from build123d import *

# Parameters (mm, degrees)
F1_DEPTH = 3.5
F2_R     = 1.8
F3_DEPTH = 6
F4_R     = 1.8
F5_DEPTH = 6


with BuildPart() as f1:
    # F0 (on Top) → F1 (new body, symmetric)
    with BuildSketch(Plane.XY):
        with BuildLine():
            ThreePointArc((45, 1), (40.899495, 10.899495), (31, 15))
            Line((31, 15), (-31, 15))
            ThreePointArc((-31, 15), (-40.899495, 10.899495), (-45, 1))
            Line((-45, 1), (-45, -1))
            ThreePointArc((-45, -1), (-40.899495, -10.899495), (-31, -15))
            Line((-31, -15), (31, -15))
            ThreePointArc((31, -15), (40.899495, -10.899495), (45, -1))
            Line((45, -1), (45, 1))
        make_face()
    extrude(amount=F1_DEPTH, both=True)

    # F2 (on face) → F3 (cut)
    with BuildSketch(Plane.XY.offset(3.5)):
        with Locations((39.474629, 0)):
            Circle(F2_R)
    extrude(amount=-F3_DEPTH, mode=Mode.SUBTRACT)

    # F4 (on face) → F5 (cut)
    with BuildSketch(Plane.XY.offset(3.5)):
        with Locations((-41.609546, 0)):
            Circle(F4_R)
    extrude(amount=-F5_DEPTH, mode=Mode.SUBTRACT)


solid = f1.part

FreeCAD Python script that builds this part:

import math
import FreeCAD as App
import Part
import Sketcher

V = App.Vector

doc = App.newDocument("Part")
params = doc.addObject("Spreadsheet::Sheet", "Params")
for row, (alias, value) in enumerate([
    ("sketch1_radius", "14 mm"),
    ("sketch1_width", "62 mm"),
    ("sketch1_height", "2 mm"),
    ("pad1_length", "7 mm"),
    ("sketch2_diameter", "3.6 mm"),
    ("pocket1_length", "6 mm"),
    ("sketch3_diameter", "3.6 mm"),
    ("pocket2_length", "6 mm"),
], start=1):
    params.set(f"A{row}", alias)
    params.set(f"B{row}", "=" + value)
    params.setAlias(f"B{row}", alias)

body = doc.addObject("PartDesign::Body", "Body")

sketch1 = body.newObject("Sketcher::SketchObject", "Sketch")
sketch1.AttachmentSupport = (doc.getObject("XY_Plane"), [""])
sketch1.MapMode = "FlatFace"
sketch1.addGeometry([
    Part.ArcOfCircle(Part.Circle(V(31, 1, 0), V(0, 0, 1), 14), math.radians(0), math.radians(90)),
    Part.LineSegment(V(31, 15, 0), V(-31, 15, 0)),
    Part.ArcOfCircle(Part.Circle(V(-31, 1, 0), V(0, 0, 1), 14), math.radians(90), math.radians(180)),
    Part.LineSegment(V(-45, 1, 0), V(-45, -1, 0)),
    Part.ArcOfCircle(Part.Circle(V(-31, -1, 0), V(0, 0, 1), 14), math.radians(180), math.radians(270)),
    Part.LineSegment(V(-31, -15, 0), V(31, -15, 0)),
    Part.ArcOfCircle(Part.Circle(V(31, -1, 0), V(0, 0, 1), 14), math.radians(-90), math.radians(0)),
    Part.LineSegment(V(45, -1, 0), V(45, 1, 0)),
], False)
sketch1.addConstraint([
    Sketcher.Constraint("Tangent", 0, 2, 1, 1),
    Sketcher.Constraint("Tangent", 1, 2, 2, 1),
    Sketcher.Constraint("Tangent", 2, 2, 3, 1),
    Sketcher.Constraint("Tangent", 3, 2, 4, 1),
    Sketcher.Constraint("Tangent", 4, 2, 5, 1),
    Sketcher.Constraint("Tangent", 5, 2, 6, 1),
    Sketcher.Constraint("Tangent", 6, 2, 7, 1),
    Sketcher.Constraint("Tangent", 7, 2, 0, 1),
    Sketcher.Constraint("Horizontal", 1),
    Sketcher.Constraint("Vertical", 3),
    Sketcher.Constraint("Horizontal", 5),
    Sketcher.Constraint("Vertical", 7),
    Sketcher.Constraint("Equal", 0, 2),
    Sketcher.Constraint("Equal", 2, 4),
    Sketcher.Constraint("Equal", 4, 6),
    Sketcher.Constraint("Symmetric", 0, 3, 4, 3, -1, 1),
    Sketcher.Constraint("Radius", 0, 14.0),
    Sketcher.Constraint("DistanceX", 1, 2, 1, 1, 62.0),
    Sketcher.Constraint("DistanceY", 3, 2, 3, 1, 2.0),
])
sketch1.setExpression("Constraints[16]", "Params.sketch1_radius")
sketch1.setExpression("Constraints[17]", "Params.sketch1_width")
sketch1.setExpression("Constraints[18]", "Params.sketch1_height")
pad1 = body.newObject("PartDesign::Pad", "Pad")
pad1.Profile = sketch1
pad1.setExpression("Length", "Params.pad1_length")
pad1.Midplane = True

sketch2 = body.newObject("Sketcher::SketchObject", "Sketch001")
sketch2.AttachmentSupport = (doc.getObject("XY_Plane"), [""])
sketch2.MapMode = "FlatFace"
sketch2.AttachmentOffset = App.Placement(V(0, 0, 3.5), App.Rotation())
sketch2.addGeometry(Part.Circle(V(39.5, 0, 0), V(0, 0, 1), 1.8), False)
sketch2.addConstraint([
    Sketcher.Constraint("PointOnObject", 0, 3, -1),
    Sketcher.Constraint("Diameter", 0, 3.6),
    Sketcher.Constraint("DistanceX", -1, 1, 0, 3, 39.474629),
])
sketch2.setExpression("Constraints[1]", "Params.sketch2_diameter")
pocket1 = body.newObject("PartDesign::Pocket", "Pocket")
pocket1.Profile = sketch2
pocket1.setExpression("Length", "Params.pocket1_length")

sketch3 = body.newObject("Sketcher::SketchObject", "Sketch002")
sketch3.AttachmentSupport = (doc.getObject("XY_Plane"), [""])
sketch3.MapMode = "FlatFace"
sketch3.AttachmentOffset = App.Placement(V(0, 0, 3.5), App.Rotation())
sketch3.addGeometry(Part.Circle(V(-41.6, 0, 0), V(0, 0, 1), 1.8), False)
sketch3.addConstraint([
    Sketcher.Constraint("PointOnObject", 0, 3, -1),
    Sketcher.Constraint("Diameter", 0, 3.6),
    Sketcher.Constraint("DistanceX", 0, 3, -1, 1, 41.609546),
])
sketch3.setExpression("Constraints[1]", "Params.sketch3_diameter")
pocket2 = body.newObject("PartDesign::Pocket", "Pocket001")
pocket2.Profile = sketch3
pocket2.setExpression("Length", "Params.pocket2_length")

doc.recompute()
